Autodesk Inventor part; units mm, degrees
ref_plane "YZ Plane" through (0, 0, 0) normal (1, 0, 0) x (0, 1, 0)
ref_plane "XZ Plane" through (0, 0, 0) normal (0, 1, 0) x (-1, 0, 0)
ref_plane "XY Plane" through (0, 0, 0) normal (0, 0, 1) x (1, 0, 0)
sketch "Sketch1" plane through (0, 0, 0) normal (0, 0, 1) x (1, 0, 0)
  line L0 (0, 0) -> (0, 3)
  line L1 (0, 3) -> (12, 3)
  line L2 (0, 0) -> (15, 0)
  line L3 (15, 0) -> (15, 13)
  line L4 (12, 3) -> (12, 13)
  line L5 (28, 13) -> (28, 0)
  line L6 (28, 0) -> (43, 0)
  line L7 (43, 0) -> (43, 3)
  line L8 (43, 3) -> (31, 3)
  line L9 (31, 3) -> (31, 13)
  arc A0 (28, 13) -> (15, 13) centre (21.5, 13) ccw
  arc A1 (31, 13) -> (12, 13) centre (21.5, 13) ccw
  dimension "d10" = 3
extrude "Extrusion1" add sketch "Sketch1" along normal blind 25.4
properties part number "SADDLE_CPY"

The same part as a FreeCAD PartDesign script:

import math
import FreeCAD as App
import Part
import Sketcher
from FreeCAD import Vector
Q = App.Units.Quantity

doc = App.newDocument("Part")
body = doc.addObject("PartDesign::Body", "Body")

sketch1 = doc.addObject("Sketcher::SketchObject", "Sketch")
body.addObject(sketch1)
sketch1.AttachmentSupport = (doc.XY_Plane, [""])
sketch1.MapMode = "FlatFace"
sketch1.addGeometry([
    Part.LineSegment(Vector(0, 3, 0), Vector(0, 0, 0)),
    Part.LineSegment(Vector(0, 0, 0), Vector(15, 0, 0)),
    Part.LineSegment(Vector(15, 0, 0), Vector(15, 13, 0)),
    Part.ArcOfCircle(Part.Circle(Vector(21.5, 13, 0), Vector(0, 0, 1), 6.5), math.radians(0), math.radians(180)),
    Part.LineSegment(Vector(28, 13, 0), Vector(28, 0, 0)),
    Part.LineSegment(Vector(28, 0, 0), Vector(43, 0, 0)),
    Part.LineSegment(Vector(43, 0, 0), Vector(43, 3, 0)),
    Part.LineSegment(Vector(43, 3, 0), Vector(31, 3, 0)),
    Part.LineSegment(Vector(31, 3, 0), Vector(31, 13, 0)),
    Part.ArcOfCircle(Part.Circle(Vector(21.5, 13, 0), Vector(0, 0, 1), 9.5), math.radians(0), math.radians(180)),
    Part.LineSegment(Vector(12, 13, 0), Vector(12, 3, 0)),
    Part.LineSegment(Vector(12, 3, 0), Vector(0, 3, 0)),
], False)
sketch1.addConstraint([
    Sketcher.Constraint("Coincident", 0, 2, 1, 1),
    Sketcher.Constraint("Coincident", 1, 2, 2, 1),
    Sketcher.Constraint("Tangent", 2, 2, 3, 2),
    Sketcher.Constraint("Tangent", 3, 1, 4, 1),
    Sketcher.Constraint("Coincident", 4, 2, 5, 1),
    Sketcher.Constraint("Coincident", 5, 2, 6, 1),
    Sketcher.Constraint("Coincident", 6, 2, 7, 1),
    Sketcher.Constraint("Coincident", 7, 2, 8, 1),
    Sketcher.Constraint("Tangent", 8, 2, 9, 1),
    Sketcher.Constraint("Tangent", 9, 2, 10, 1),
    Sketcher.Constraint("Coincident", 10, 2, 11, 1),
    Sketcher.Constraint("Coincident", 11, 2, 0, 1),
    Sketcher.Constraint("Vertical", 0),
    Sketcher.Constraint("Horizontal", 1),
    Sketcher.Constraint("Vertical", 2),
    Sketcher.Constraint("Vertical", 4),
    Sketcher.Constraint("Horizontal", 5),
    Sketcher.Constraint("Vertical", 6),
    Sketcher.Constraint("Horizontal", 7),
    Sketcher.Constraint("Vertical", 8),
    Sketcher.Constraint("Vertical", 10),
    Sketcher.Constraint("Horizontal", 11),
    Sketcher.Constraint("Coincident", 0, 2, -1, 1),
    Sketcher.Constraint("Coincident", 9, 3, 3, 3),
    Sketcher.Constraint("PointOnObject", 4, 2, -1),
    Sketcher.Constraint("Horizontal", 7, 2, 10, 2),
    Sketcher.Constraint("Equal", 1, 5),
    Sketcher.Constraint("DistanceY", 0, 2, 0, 1, Q("3 mm")),
    Sketcher.Constraint("DistanceX", 4, 2, 7, 2, Q("3 mm")),
    Sketcher.Constraint("Radius", 3, Q("6.5 mm")),
    Sketcher.Constraint("DistanceX", 1, 1, 1, 2, Q("15 mm")),
    Sketcher.Constraint("DistanceY", 2, 1, 2, 2, Q("13 mm")),
])
pad1 = doc.addObject("PartDesign::Pad", "Pad")
body.addObject(pad1)
pad1.Profile = sketch1
pad1.Length = 25.4

doc.recompute()
